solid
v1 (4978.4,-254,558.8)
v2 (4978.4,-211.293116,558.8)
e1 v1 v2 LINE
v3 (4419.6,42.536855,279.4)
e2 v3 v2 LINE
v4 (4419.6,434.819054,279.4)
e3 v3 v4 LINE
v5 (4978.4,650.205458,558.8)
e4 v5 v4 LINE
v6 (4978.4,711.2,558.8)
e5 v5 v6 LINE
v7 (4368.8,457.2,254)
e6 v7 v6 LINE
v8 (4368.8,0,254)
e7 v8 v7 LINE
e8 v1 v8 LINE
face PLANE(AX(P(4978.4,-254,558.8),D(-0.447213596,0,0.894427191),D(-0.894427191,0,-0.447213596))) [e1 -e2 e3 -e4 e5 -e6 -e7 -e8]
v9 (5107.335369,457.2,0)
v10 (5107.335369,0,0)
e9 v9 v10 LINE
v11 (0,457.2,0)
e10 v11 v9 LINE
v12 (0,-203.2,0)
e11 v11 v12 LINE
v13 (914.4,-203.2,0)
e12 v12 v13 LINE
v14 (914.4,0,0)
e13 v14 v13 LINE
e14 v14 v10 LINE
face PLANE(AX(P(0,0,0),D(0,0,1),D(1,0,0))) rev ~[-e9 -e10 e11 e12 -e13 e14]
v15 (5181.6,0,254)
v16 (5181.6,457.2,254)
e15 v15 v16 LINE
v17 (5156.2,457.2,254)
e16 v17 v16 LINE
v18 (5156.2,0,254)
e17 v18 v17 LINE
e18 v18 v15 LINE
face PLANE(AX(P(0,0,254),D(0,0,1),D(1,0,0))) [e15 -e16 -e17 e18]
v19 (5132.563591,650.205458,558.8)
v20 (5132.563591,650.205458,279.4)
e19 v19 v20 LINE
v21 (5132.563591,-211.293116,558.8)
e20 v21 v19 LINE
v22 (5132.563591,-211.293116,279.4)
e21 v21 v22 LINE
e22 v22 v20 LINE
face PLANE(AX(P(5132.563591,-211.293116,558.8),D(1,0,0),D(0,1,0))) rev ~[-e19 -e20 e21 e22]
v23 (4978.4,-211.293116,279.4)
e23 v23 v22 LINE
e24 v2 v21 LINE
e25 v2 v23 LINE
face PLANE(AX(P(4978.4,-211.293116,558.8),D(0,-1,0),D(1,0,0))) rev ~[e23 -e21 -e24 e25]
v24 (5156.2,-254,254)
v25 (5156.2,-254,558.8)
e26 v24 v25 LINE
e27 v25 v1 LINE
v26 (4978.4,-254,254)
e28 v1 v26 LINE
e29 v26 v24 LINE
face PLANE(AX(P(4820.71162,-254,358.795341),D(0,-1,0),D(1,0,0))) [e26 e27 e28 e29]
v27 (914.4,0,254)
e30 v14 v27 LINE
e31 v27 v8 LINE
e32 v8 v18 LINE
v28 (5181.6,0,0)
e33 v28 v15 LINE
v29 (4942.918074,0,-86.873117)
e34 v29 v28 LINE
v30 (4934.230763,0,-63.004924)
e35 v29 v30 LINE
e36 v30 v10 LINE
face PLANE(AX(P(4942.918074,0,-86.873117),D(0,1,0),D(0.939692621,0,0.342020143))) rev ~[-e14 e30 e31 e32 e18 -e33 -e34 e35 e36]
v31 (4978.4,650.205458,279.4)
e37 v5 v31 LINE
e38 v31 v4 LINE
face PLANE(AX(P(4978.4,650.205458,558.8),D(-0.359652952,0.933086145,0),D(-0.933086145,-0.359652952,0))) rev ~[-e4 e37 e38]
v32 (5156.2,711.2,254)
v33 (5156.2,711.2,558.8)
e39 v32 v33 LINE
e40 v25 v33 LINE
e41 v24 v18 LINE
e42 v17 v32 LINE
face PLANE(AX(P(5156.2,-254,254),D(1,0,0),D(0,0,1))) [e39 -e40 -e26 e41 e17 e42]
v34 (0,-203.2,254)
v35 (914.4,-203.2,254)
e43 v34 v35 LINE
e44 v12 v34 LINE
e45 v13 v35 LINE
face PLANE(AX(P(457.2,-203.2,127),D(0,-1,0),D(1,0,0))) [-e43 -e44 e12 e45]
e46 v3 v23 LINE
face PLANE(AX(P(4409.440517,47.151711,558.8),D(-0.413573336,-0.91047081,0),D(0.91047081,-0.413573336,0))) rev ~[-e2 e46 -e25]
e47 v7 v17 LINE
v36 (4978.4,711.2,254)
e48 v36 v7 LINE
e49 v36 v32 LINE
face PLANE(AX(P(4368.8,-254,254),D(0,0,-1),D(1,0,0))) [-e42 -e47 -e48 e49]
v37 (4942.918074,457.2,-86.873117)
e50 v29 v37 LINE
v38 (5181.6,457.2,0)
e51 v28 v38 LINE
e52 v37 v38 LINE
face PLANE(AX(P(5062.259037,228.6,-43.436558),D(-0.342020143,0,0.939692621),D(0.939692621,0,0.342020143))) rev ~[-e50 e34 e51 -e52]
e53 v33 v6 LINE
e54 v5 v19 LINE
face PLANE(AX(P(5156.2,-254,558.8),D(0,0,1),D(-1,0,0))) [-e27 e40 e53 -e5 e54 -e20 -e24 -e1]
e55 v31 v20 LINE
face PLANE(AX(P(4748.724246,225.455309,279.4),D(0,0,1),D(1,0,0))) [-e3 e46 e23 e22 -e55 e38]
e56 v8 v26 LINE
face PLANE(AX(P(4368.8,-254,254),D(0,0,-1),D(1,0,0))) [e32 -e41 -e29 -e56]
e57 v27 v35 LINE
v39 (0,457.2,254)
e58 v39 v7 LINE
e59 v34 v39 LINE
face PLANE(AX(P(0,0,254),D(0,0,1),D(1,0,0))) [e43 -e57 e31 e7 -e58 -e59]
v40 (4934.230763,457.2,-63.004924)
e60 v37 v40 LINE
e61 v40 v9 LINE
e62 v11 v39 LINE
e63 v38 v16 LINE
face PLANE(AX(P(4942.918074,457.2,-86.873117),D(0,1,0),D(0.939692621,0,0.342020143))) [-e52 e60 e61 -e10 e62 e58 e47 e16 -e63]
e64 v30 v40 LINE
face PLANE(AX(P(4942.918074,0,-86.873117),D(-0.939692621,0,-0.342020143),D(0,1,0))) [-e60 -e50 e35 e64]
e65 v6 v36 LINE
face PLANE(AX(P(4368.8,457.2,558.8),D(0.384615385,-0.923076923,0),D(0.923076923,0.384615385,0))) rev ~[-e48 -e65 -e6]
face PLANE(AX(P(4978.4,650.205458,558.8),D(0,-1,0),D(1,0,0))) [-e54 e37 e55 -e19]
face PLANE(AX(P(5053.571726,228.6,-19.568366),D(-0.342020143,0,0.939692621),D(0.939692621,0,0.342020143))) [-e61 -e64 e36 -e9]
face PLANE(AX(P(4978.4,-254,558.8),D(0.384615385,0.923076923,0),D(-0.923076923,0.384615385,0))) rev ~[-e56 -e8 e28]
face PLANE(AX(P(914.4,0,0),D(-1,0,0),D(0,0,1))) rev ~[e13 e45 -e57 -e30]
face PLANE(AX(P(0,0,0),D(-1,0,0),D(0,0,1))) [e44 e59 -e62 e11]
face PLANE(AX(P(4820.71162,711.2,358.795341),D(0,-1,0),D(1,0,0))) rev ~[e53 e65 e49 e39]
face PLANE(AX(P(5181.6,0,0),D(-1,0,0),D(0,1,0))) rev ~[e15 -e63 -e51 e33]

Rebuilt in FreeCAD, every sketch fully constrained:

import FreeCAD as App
import Part
import Sketcher
from FreeCAD import Vector
Q = App.Units.Quantity

doc = App.newDocument("Part")
body = doc.addObject("PartDesign::Body", "Body")

sketch1 = body.newObject("Sketcher::SketchObject", "Sketch")
sketch1.AttachmentSupport = (doc.getObject("XY_Plane"), [""])
sketch1.MapMode = "FlatFace"
sketch1.addGeometry([
    Part.LineSegment(Vector(0, 457, 0), Vector(0, 0, 0)),
    Part.LineSegment(Vector(0, 0, 0), Vector(5182, 0, 0)),
    Part.LineSegment(Vector(5182, 0, 0), Vector(5182, 457, 0)),
    Part.LineSegment(Vector(5182, 457, 0), Vector(0, 457, 0)),
], False)
sketch1.addConstraint([
    Sketcher.Constraint("Coincident", 0, 2, 1, 1),
    Sketcher.Constraint("Coincident", 1, 2, 2, 1),
    Sketcher.Constraint("Coincident", 2, 2, 3, 1),
    Sketcher.Constraint("Coincident", 3, 2, 0, 1),
    Sketcher.Constraint("Vertical", 0),
    Sketcher.Constraint("Horizontal", 1),
    Sketcher.Constraint("Vertical", 2),
    Sketcher.Constraint("Horizontal", 3),
    Sketcher.Constraint("Coincident", 0, 2, -1, 1),
    Sketcher.Constraint("DistanceX", 1, 1, 1, 2, Q("204 in")),
    Sketcher.Constraint("DistanceY", 0, 2, 0, 1, Q("18 in")),
])
pad1 = body.newObject("PartDesign::Pad", "Pad")
pad1.Profile = sketch1
pad1.Length = Q("10 in")

sketch2 = body.newObject("Sketcher::SketchObject", "Sketch001")
sketch2.AttachmentSupport = (doc.getObject("XZ_Plane"), [""])
sketch2.MapMode = "FlatFace"
sketch2.addGeometry([
    Part.LineSegment(Vector(0, 254, 0), Vector(0, 0, 0)),
    Part.LineSegment(Vector(0, 0, 0), Vector(914, 0, 0)),
    Part.LineSegment(Vector(914, 0, 0), Vector(914, 254, 0)),
    Part.LineSegment(Vector(914, 254, 0), Vector(0, 254, 0)),
], False)
sketch2.addConstraint([
    Sketcher.Constraint("Coincident", 0, 2, 1, 1),
    Sketcher.Constraint("Coincident", 1, 2, 2, 1),
    Sketcher.Constraint("Coincident", 2, 2, 3, 1),
    Sketcher.Constraint("Coincident", 3, 2, 0, 1),
    Sketcher.Constraint("Vertical", 0),
    Sketcher.Constraint("Horizontal", 1),
    Sketcher.Constraint("Vertical", 2),
    Sketcher.Constraint("Horizontal", 3),
    Sketcher.Constraint("Coincident", 0, 2, -1, 1),
    Sketcher.Constraint("DistanceX", 1, 1, 1, 2, Q("36 in")),
    Sketcher.Constraint("DistanceY", 0, 2, 0, 1, Q("10 in")),
])
pad2 = body.newObject("PartDesign::Pad", "Pad001")
pad2.Profile = sketch2
pad2.Length = Q("8 in")

sketch3 = body.newObject("Sketcher::SketchObject", "Sketch002")
sketch3.AttachmentSupport = (doc.getObject("XZ_Plane"), [""])
sketch3.MapMode = "FlatFace"
sketch3.AttachmentOffset = App.Placement(Vector(0, 0, 10 * 25.4), App.Rotation())
sketch3.addGeometry([
    Part.LineSegment(Vector(4369, 254, 0), Vector(5156, 254, 0)),
    Part.LineSegment(Vector(5156, 254, 0), Vector(5156, 559, 0)),
    Part.LineSegment(Vector(5156, 559, 0), Vector(4978, 559, 0)),
    Part.LineSegment(Vector(4978, 559, 0), Vector(4369, 254, 0)),
], False)
sketch3.addConstraint([
    Sketcher.Constraint("Coincident", 0, 2, 1, 1),
    Sketcher.Constraint("Coincident", 1, 2, 2, 1),
    Sketcher.Constraint("Coincident", 2, 2, 3, 1),
    Sketcher.Constraint("Coincident", 3, 2, 0, 1),
    Sketcher.Constraint("Horizontal", 0),
    Sketcher.Constraint("Vertical", 1),
    Sketcher.Constraint("Horizontal", 2),
    Sketcher.Constraint("DistanceX", 0, 1, 0, 2, Q("31 in")),
    Sketcher.Constraint("DistanceX", 2, 2, 2, 1, Q("7 in")),
    Sketcher.Constraint("DistanceY", 1, 1, 1, 2, Q("12 in")),
    Sketcher.Constraint("DistanceX", -1, 1, 0, 2, Q("203 in")),
    Sketcher.Constraint("DistanceY", -1, 1, 0, 2, Q("10 in")),
])
pad3 = body.newObject("PartDesign::Pad", "Pad002")
pad3.Profile = sketch3
pad3.Length = Q("38 in")
pad3.Reversed = True

sketch4 = body.newObject("Sketcher::SketchObject", "Sketch003")
sketch4.AttachmentSupport = (doc.getObject("XY_Plane"), [""])
sketch4.MapMode = "FlatFace"
sketch4.AttachmentOffset = App.Placement(Vector(0, 0, 22 * 25.4), App.Rotation())
sketch4.addGeometry([
    Part.LineSegment(Vector(4978, 711, 0), Vector(4369, 711, 0)),
    Part.LineSegment(Vector(4369, 711, 0), Vector(4369, 457, 0)),
    Part.LineSegment(Vector(4369, 457, 0), Vector(4978, 711, 0)),
    Part.LineSegment(Vector(4369, -254, 0), Vector(4978, -254, 0)),
    Part.LineSegment(Vector(4978, -254, 0), Vector(4369, 0, 0)),
    Part.LineSegment(Vector(4369, 0, 0), Vector(4369, -254, 0)),
], False)
sketch4.addConstraint([
    Sketcher.Constraint("Coincident", 0, 2, 1, 1),
    Sketcher.Constraint("Coincident", 1, 2, 2, 1),
    Sketcher.Constraint("Coincident", 2, 2, 0, 1),
    Sketcher.Constraint("Coincident", 3, 2, 4, 1),
    Sketcher.Constraint("Coincident", 4, 2, 5, 1),
    Sketcher.Constraint("Coincident", 5, 2, 3, 1),
    Sketcher.Constraint("Horizontal", 0),
    Sketcher.Constraint("Vertical", 1),
    Sketcher.Constraint("Horizontal", 3),
    Sketcher.Constraint("Vertical", 5),
    Sketcher.Constraint("PointOnObject", 4, 2, -1),
    Sketcher.Constraint("Vertical", 2, 2, 3, 2),
    Sketcher.Constraint("Vertical", 1, 2, 4, 2),
    Sketcher.Constraint("Equal", 1, 5),
    Sketcher.Constraint("DistanceX", 0, 2, 0, 1, Q("24 in")),
    Sketcher.Constraint("DistanceY", 1, 2, 1, 1, Q("10 in")),
    Sketcher.Constraint("DistanceX", -1, 1, 0, 2, Q("172 in")),
    Sketcher.Constraint("DistanceY", -1, 1, 0, 2, Q("28 in")),
])
pocket1 = body.newObject("PartDesign::Pocket", "Pocket")
pocket1.Profile = sketch4
pocket1.Type = "ThroughAll"

sketch5 = body.newObject("Sketcher::SketchObject", "Sketch004")
sketch5.AttachmentSupport = (doc.getObject("XY_Plane"), [""])
sketch5.MapMode = "FlatFace"
sketch5.AttachmentOffset = App.Placement(Vector(0, 0, 22 * 25.4), App.Rotation())
sketch5.addGeometry([
    Part.LineSegment(Vector(4978, 650, 0), Vector(4409, 431, 0)),
    Part.LineSegment(Vector(4409, 431, 0), Vector(4409, 47, 0)),
    Part.LineSegment(Vector(4409, 47, 0), Vector(4978, -211, 0)),
    Part.LineSegment(Vector(4978, -211, 0), Vector(5133, -211, 0)),
    Part.LineSegment(Vector(5133, -211, 0), Vector(5133, 650, 0)),
    Part.LineSegment(Vector(5133, 650, 0), Vector(4978, 650, 0)),
], False)
sketch5.addConstraint([
    Sketcher.Constraint("Coincident", 0, 2, 1, 1),
    Sketcher.Constraint("Coincident", 1, 2, 2, 1),
    Sketcher.Constraint("Coincident", 2, 2, 3, 1),
    Sketcher.Constraint("Coincident", 3, 2, 4, 1),
    Sketcher.Constraint("Coincident", 4, 2, 5, 1),
    Sketcher.Constraint("Coincident", 5, 2, 0, 1),
    Sketcher.Constraint("Vertical", 1),
    Sketcher.Constraint("Horizontal", 3),
    Sketcher.Constraint("Vertical", 4),
    Sketcher.Constraint("Horizontal", 5),
    Sketcher.Constraint("Vertical", 2, 2, 5, 2),
    Sketcher.Constraint("DistanceX", -1, 1, 2, 2, Q("196 in")),
    Sketcher.Constraint("DistanceX", 3, 1, 3, 2, Q("154.163591 mm")),
    Sketcher.Constraint("Distance", 2, Q("624.90689 mm")),
    Sketcher.Constraint("DistanceY", 1, 2, 1, 1, Q("383.751426 mm")),
    Sketcher.Constraint("DistanceY", 4, 1, 4, 2, Q("861.498574 mm")),
    Sketcher.Constraint("DistanceY", -1, 1, 1, 2, Q("47.151711 mm")),
    Sketcher.Constraint("DistanceY", -1, 1, 4, 2, Q("650.205458 mm")),
])
pocket2 = body.newObject("PartDesign::Pocket", "Pocket001")
pocket2.Profile = sketch5
pocket2.Length = Q("11 in")

sketch6 = body.newObject("Sketcher::SketchObject", "Sketch005")
sketch6.Placement = App.Placement(Vector(606.132057, 0, -1665.334139), App.Rotation(Vector(0.939692621, 0, 0.342020143), Vector(0, 1, 0), Vector(-0.342020143, 0, 0.939692621), "ZXY"))
sketch6.addGeometry([
    Part.LineSegment(Vector(4615, 457, 0), Vector(4615, 0, 0)),
    Part.LineSegment(Vector(4615, 0, 0), Vector(4869, 0, 0)),
    Part.LineSegment(Vector(4869, 0, 0), Vector(4869, 457, 0)),
    Part.LineSegment(Vector(4869, 457, 0), Vector(4615, 457, 0)),
], False)
sketch6.addConstraint([
    Sketcher.Constraint("Coincident", 0, 2, 1, 1),
    Sketcher.Constraint("Coincident", 1, 2, 2, 1),
    Sketcher.Constraint("Coincident", 2, 2, 3, 1),
    Sketcher.Constraint("Coincident", 3, 2, 0, 1),
    Sketcher.Constraint("Vertical", 0),
    Sketcher.Constraint("Horizontal", 1),
    Sketcher.Constraint("Vertical", 2),
    Sketcher.Constraint("Horizontal", 3),
    Sketcher.Constraint("PointOnObject", 0, 2, -1),
    Sketcher.Constraint("DistanceX", 1, 1, 1, 2, Q("10 in")),
    Sketcher.Constraint("DistanceY", 0, 2, 0, 1, Q("18 in")),
    Sketcher.Constraint("DistanceX", -1, 1, 0, 2, Q("4615.111285 mm")),
])
pad4 = body.newObject("PartDesign::Pad", "Pad003")
pad4.Profile = sketch6
pad4.Length = Q("1 in")

doc.recompute()
